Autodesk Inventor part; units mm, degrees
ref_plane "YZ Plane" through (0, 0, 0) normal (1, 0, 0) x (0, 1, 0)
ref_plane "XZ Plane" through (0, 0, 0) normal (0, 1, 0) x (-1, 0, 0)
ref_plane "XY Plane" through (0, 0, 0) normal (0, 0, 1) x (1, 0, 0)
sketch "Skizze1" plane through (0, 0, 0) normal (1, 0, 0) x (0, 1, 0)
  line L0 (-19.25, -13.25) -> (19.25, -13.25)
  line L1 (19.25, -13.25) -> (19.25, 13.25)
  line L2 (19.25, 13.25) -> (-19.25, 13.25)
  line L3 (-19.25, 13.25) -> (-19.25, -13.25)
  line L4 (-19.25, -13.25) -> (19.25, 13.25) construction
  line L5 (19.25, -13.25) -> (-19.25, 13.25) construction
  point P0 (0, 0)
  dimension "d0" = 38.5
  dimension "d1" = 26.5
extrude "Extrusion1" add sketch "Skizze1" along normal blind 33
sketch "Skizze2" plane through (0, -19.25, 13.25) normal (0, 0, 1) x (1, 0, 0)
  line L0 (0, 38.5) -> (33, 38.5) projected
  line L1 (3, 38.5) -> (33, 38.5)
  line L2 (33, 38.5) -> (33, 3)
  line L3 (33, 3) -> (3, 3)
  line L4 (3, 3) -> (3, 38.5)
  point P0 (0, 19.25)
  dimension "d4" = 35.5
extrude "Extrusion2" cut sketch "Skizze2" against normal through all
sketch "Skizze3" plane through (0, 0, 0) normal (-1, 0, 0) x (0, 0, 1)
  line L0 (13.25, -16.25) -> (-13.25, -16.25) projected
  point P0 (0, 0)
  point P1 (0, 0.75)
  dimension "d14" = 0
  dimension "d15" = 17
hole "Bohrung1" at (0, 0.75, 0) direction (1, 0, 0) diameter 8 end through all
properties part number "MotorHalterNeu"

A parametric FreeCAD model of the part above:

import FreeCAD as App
import Part
import Sketcher

V = App.Vector
Q = App.Units.Quantity

doc = App.newDocument("Part")
body = doc.addObject("PartDesign::Body", "Body")

sketch1 = body.newObject("Sketcher::SketchObject", "Sketch")
sketch1.AttachmentSupport = (doc.getObject("YZ_Plane"), [""])
sketch1.MapMode = "FlatFace"
sketch1.addGeometry(Part.LineSegment(V(-19.25, 13.25, 0), V(-19.25, -13.25, 0)), False)
sketch1.addGeometry(Part.LineSegment(V(-19.25, -13.25, 0), V(19.25, -13.25, 0)), False)
sketch1.addGeometry(Part.LineSegment(V(19.25, -13.25, 0), V(19.25, 13.25, 0)), False)
sketch1.addGeometry(Part.LineSegment(V(19.25, 13.25, 0), V(-19.25, 13.25, 0)), False)
sketch1.addConstraint(Sketcher.Constraint("Coincident", 0, 2, 1, 1))
sketch1.addConstraint(Sketcher.Constraint("Coincident", 1, 2, 2, 1))
sketch1.addConstraint(Sketcher.Constraint("Coincident", 2, 2, 3, 1))
sketch1.addConstraint(Sketcher.Constraint("Coincident", 3, 2, 0, 1))
sketch1.addConstraint(Sketcher.Constraint("Vertical", 0))
sketch1.addConstraint(Sketcher.Constraint("Horizontal", 1))
sketch1.addConstraint(Sketcher.Constraint("Vertical", 2))
sketch1.addConstraint(Sketcher.Constraint("Horizontal", 3))
sketch1.addConstraint(Sketcher.Constraint("Symmetric", 0, 2, 2, 2, -1, 1))
sketch1.addConstraint(Sketcher.Constraint("DistanceX", 1, 1, 1, 2, Q("38.5 mm")))
sketch1.addConstraint(Sketcher.Constraint("DistanceY", 0, 2, 0, 1, Q("26.5 mm")))
pad1 = body.newObject("PartDesign::Pad", "Pad")
pad1.Profile = sketch1
pad1.Length = 33

sketch2 = body.newObject("Sketcher::SketchObject", "Sketch001")
sketch2.AttachmentSupport = (doc.getObject("XY_Plane"), [""])
sketch2.MapMode = "FlatFace"
sketch2.AttachmentOffset = App.Placement(V(0, 0, 13.25), App.Rotation())
sketch2.addGeometry(Part.LineSegment(V(33, 19.25, 0), V(3, 19.25, 0)), False)
sketch2.addGeometry(Part.LineSegment(V(3, 19.25, 0), V(3, -16.25, 0)), False)
sketch2.addGeometry(Part.LineSegment(V(3, -16.25, 0), V(33, -16.25, 0)), False)
sketch2.addGeometry(Part.LineSegment(V(33, -16.25, 0), V(33, 19.25, 0)), False)
sketch2.addConstraint(Sketcher.Constraint("Coincident", 0, 2, 1, 1))
sketch2.addConstraint(Sketcher.Constraint("Coincident", 1, 2, 2, 1))
sketch2.addConstraint(Sketcher.Constraint("Coincident", 2, 2, 3, 1))
sketch2.addConstraint(Sketcher.Constraint("Coincident", 3, 2, 0, 1))
sketch2.addConstraint(Sketcher.Constraint("Horizontal", 0))
sketch2.addConstraint(Sketcher.Constraint("Vertical", 1))
sketch2.addConstraint(Sketcher.Constraint("Horizontal", 2))
sketch2.addConstraint(Sketcher.Constraint("Vertical", 3))
sketch2.addConstraint(Sketcher.Constraint("DistanceY", 1, 2, 1, 1, Q("35.5 mm")))
sketch2.addConstraint(Sketcher.Constraint("DistanceX", 0, 2, 0, 1, Q("30 mm")))
sketch2.addConstraint(Sketcher.Constraint("DistanceX", -1, 1, 0, 2, Q("3 mm")))
sketch2.addConstraint(Sketcher.Constraint("DistanceY", -1, 1, 0, 2, Q("19.25 mm")))
pocket1 = body.newObject("PartDesign::Pocket", "Pocket")
pocket1.Profile = sketch2
pocket1.Type = "ThroughAll"

sketch3 = body.newObject("Sketcher::SketchObject", "Sketch002")
sketch3.AttachmentSupport = (doc.getObject("YZ_Plane"), [""])
sketch3.MapMode = "FlatFace"
sketch3.addGeometry(Part.Circle(V(0.75, 0, 0), V(0, 0, 1), 4), False)
sketch3.addConstraint(Sketcher.Constraint("PointOnObject", 0, 3, -1))
sketch3.addConstraint(Sketcher.Constraint("Diameter", 0, Q("8 mm")))
sketch3.addConstraint(Sketcher.Constraint("DistanceX", -1, 1, 0, 3, Q("0.75 mm")))
doc.recompute()
hole = body.newObject("PartDesign::Hole", "Hole")
hole.Profile = sketch3
hole.ThreadType = "None"
hole.Diameter = 8
hole.DepthType = "ThroughAll"
hole.Reversed = True

doc.recompute()
